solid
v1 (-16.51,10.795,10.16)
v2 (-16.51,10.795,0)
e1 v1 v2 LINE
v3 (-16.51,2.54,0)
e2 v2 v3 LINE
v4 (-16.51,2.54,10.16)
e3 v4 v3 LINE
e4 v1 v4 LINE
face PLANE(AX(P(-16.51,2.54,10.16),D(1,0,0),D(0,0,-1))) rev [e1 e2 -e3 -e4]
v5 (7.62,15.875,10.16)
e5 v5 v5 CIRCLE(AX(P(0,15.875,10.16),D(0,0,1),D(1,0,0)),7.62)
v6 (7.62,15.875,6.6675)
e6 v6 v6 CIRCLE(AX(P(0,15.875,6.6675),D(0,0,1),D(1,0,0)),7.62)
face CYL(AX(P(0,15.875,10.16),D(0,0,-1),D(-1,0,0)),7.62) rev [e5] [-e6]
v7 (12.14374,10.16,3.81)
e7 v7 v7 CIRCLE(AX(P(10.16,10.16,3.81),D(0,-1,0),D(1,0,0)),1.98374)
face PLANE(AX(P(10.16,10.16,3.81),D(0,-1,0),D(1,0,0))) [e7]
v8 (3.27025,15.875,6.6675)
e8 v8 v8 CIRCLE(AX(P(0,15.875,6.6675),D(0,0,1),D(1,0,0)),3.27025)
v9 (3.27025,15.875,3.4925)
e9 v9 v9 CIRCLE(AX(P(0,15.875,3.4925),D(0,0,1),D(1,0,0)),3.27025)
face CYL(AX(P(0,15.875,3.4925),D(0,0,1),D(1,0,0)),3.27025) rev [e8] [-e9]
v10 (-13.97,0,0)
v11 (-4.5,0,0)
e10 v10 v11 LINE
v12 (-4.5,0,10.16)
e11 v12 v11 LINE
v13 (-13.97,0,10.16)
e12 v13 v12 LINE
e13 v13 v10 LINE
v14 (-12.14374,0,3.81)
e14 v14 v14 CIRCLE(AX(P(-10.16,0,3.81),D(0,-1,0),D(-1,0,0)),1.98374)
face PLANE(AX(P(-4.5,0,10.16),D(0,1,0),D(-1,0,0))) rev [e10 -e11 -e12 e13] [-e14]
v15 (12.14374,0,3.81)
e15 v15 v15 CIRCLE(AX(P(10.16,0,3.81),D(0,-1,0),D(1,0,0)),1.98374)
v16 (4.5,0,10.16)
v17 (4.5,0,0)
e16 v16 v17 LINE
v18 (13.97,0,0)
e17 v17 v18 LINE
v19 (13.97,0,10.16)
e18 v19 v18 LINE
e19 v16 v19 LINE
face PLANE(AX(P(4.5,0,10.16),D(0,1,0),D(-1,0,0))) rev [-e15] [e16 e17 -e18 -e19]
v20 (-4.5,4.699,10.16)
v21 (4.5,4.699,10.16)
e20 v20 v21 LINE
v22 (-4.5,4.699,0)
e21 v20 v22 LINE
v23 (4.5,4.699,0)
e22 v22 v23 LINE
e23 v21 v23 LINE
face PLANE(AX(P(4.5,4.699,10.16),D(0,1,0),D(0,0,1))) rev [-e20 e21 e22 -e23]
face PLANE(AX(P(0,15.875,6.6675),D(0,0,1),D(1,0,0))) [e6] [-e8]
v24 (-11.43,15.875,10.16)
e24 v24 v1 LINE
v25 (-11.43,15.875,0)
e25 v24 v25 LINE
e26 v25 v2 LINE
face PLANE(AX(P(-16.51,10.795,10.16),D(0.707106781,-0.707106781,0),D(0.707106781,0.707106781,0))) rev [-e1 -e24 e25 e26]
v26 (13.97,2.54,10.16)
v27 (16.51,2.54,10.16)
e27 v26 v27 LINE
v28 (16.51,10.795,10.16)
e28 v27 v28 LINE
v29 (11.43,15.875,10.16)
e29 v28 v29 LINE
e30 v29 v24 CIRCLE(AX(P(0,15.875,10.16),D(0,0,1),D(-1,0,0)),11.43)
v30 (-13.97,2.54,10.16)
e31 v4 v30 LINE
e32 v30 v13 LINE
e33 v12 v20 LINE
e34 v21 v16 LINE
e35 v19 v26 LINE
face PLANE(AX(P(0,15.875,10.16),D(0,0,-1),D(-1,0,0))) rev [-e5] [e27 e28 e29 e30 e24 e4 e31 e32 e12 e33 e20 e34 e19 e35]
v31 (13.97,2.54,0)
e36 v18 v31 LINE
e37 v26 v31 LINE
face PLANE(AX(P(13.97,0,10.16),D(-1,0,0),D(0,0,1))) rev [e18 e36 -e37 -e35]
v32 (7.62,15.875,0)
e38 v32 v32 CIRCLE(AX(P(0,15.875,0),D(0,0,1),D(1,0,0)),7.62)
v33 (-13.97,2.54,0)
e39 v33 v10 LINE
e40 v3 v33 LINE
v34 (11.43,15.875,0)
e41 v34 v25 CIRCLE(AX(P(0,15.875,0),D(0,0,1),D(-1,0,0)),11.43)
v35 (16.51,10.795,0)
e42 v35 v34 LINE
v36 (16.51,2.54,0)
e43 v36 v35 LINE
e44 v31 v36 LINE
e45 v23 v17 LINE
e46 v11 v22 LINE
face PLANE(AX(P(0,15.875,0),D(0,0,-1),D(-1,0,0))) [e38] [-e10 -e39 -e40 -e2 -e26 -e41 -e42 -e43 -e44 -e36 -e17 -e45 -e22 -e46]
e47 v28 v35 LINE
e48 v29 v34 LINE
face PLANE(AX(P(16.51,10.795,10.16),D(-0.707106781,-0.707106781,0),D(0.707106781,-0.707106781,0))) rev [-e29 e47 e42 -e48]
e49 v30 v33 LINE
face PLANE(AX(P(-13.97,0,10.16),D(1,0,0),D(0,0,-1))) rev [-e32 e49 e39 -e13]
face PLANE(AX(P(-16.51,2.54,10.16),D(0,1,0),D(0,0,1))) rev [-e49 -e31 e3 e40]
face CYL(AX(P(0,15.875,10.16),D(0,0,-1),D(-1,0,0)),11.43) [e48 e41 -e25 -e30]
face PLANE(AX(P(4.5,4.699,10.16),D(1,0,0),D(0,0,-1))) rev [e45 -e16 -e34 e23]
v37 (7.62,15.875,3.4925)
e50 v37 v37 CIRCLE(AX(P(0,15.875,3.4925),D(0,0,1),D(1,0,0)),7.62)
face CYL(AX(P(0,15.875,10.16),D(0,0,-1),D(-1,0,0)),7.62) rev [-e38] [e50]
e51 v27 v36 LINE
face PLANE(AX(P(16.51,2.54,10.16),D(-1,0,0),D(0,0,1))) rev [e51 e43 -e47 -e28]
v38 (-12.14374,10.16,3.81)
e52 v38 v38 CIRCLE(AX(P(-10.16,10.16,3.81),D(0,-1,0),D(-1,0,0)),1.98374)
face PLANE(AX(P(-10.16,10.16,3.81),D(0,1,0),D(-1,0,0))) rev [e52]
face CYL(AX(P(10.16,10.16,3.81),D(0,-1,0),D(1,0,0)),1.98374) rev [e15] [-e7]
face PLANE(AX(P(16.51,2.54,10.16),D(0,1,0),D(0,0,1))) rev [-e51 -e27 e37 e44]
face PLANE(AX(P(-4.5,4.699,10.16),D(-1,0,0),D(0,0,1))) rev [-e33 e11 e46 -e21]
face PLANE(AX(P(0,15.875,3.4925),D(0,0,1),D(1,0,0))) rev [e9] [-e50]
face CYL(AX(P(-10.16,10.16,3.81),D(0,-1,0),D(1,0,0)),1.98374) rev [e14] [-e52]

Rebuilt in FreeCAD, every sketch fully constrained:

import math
import FreeCAD as App
import Part
import Sketcher

V = App.Vector
Q = App.Units.Quantity

doc = App.newDocument("Part")
body = doc.addObject("PartDesign::Body", "Body")

sketch1 = body.newObject("Sketcher::SketchObject", "Sketch")
sketch1.AttachmentSupport = (doc.getObject("XY_Plane"), [""])
sketch1.MapMode = "FlatFace"
sketch1.addGeometry(Part.LineSegment(V(-4.5, 4.7, 0), V(4.5, 4.7, 0)), False)
sketch1.addGeometry(Part.LineSegment(V(4.5, 4.7, 0), V(4.5, 0, 0)), False)
sketch1.addGeometry(Part.LineSegment(V(4.5, 0, 0), V(14, 0, 0)), False)
sketch1.addGeometry(Part.LineSegment(V(14, 0, 0), V(14, 2.5, 0)), False)
sketch1.addGeometry(Part.LineSegment(V(14, 2.5, 0), V(16.5, 2.5, 0)), False)
sketch1.addGeometry(Part.LineSegment(V(16.5, 2.5, 0), V(16.5, 10.8, 0)), False)
sketch1.addGeometry(Part.LineSegment(V(16.5, 10.8, 0), V(11.4, 15.9, 0)), False)
sketch1.addGeometry(Part.ArcOfCircle(Part.Circle(V(0, 15.9, 0), V(0, 0, 1), 11.4), math.radians(0), math.radians(180)), False)
sketch1.addGeometry(Part.LineSegment(V(-11.4, 15.9, 0), V(-16.5, 10.8, 0)), False)
sketch1.addGeometry(Part.LineSegment(V(-16.5, 10.8, 0), V(-16.5, 2.5, 0)), False)
sketch1.addGeometry(Part.LineSegment(V(-16.5, 2.5, 0), V(-14, 2.5, 0)), False)
sketch1.addGeometry(Part.LineSegment(V(-14, 2.5, 0), V(-14, 0, 0)), False)
sketch1.addGeometry(Part.LineSegment(V(-14, 0, 0), V(-4.5, 0, 0)), False)
sketch1.addGeometry(Part.LineSegment(V(-4.5, 0, 0), V(-4.5, 4.7, 0)), False)
sketch1.addGeometry(Part.Circle(V(0, 15.9, 0), V(0, 0, 1), 7.6), False)
sketch1.addConstraint(Sketcher.Constraint("Coincident", 0, 2, 1, 1))
sketch1.addConstraint(Sketcher.Constraint("Coincident", 1, 2, 2, 1))
sketch1.addConstraint(Sketcher.Constraint("Coincident", 2, 2, 3, 1))
sketch1.addConstraint(Sketcher.Constraint("Coincident", 3, 2, 4, 1))
sketch1.addConstraint(Sketcher.Constraint("Coincident", 4, 2, 5, 1))
sketch1.addConstraint(Sketcher.Constraint("Coincident", 5, 2, 6, 1))
sketch1.addConstraint(Sketcher.Constraint("Coincident", 6, 2, 7, 1))
sketch1.addConstraint(Sketcher.Constraint("Coincident", 7, 2, 8, 1))
sketch1.addConstraint(Sketcher.Constraint("Coincident", 8, 2, 9, 1))
sketch1.addConstraint(Sketcher.Constraint("Coincident", 9, 2, 10, 1))
sketch1.addConstraint(Sketcher.Constraint("Coincident", 10, 2, 11, 1))
sketch1.addConstraint(Sketcher.Constraint("Coincident", 11, 2, 12, 1))
sketch1.addConstraint(Sketcher.Constraint("Coincident", 12, 2, 13, 1))
sketch1.addConstraint(Sketcher.Constraint("Coincident", 13, 2, 0, 1))
sketch1.addConstraint(Sketcher.Constraint("Horizontal", 0))
sketch1.addConstraint(Sketcher.Constraint("Vertical", 1))
sketch1.addConstraint(Sketcher.Constraint("Horizontal", 2))
sketch1.addConstraint(Sketcher.Constraint("Vertical", 3))
sketch1.addConstraint(Sketcher.Constraint("Horizontal", 4))
sketch1.addConstraint(Sketcher.Constraint("Vertical", 5))
sketch1.addConstraint(Sketcher.Constraint("Vertical", 9))
sketch1.addConstraint(Sketcher.Constraint("Horizontal", 10))
sketch1.addConstraint(Sketcher.Constraint("Vertical", 11))
sketch1.addConstraint(Sketcher.Constraint("Horizontal", 12))
sketch1.addConstraint(Sketcher.Constraint("Vertical", 13))
sketch1.addConstraint(Sketcher.Constraint("Coincident", 14, 3, 7, 3))
sketch1.addConstraint(Sketcher.Constraint("Symmetric", 2, 2, 11, 2, -1, 1))
sketch1.addConstraint(Sketcher.Constraint("Symmetric", 6, 2, 7, 2, -2))
sketch1.addConstraint(Sketcher.Constraint("Symmetric", 5, 2, 8, 2, -2))
sketch1.addConstraint(Sketcher.Constraint("Symmetric", 1, 2, 12, 2, -2))
sketch1.addConstraint(Sketcher.Constraint("Perpendicular", 6, 8))
sketch1.addConstraint(Sketcher.Constraint("Horizontal", 14, 3, 6, 2))
sketch1.addConstraint(Sketcher.Constraint("Horizontal", 4, 2, 9, 2))
sketch1.addConstraint(Sketcher.Constraint("Equal", 10, 3))
sketch1.addConstraint(Sketcher.Constraint("Diameter", 14, Q("0.6 in")))
sketch1.addConstraint(Sketcher.Constraint("Radius", 7, Q("0.45 in")))
sketch1.addConstraint(Sketcher.Constraint("DistanceX", 4, 1, 4, 2, Q("0.1 in")))
sketch1.addConstraint(Sketcher.Constraint("DistanceX", 6, 2, 5, 2, Q("0.2 in")))
sketch1.addConstraint(Sketcher.Constraint("DistanceY", 1, 2, 1, 1, Q("0.185 in")))
sketch1.addConstraint(Sketcher.Constraint("DistanceY", 5, 1, 5, 2, Q("0.325 in")))
sketch1.addConstraint(Sketcher.Constraint("DistanceX", 0, 1, 0, 2, 9.0))
pad1 = body.newObject("PartDesign::Pad", "Pad")
pad1.Profile = sketch1
pad1.Length = Q("0.4 in")

sketch2 = body.newObject("Sketcher::SketchObject", "Sketch001")
sketch2.AttachmentSupport = (doc.getObject("XY_Plane"), [""])
sketch2.MapMode = "FlatFace"
sketch2.AttachmentOffset = App.Placement(V(0, 0, 0.2 * 25.4), App.Rotation())
sketch2.addGeometry(Part.Circle(V(0, 15.9, 0), V(0, 0, 1), 8.7), False)
sketch2.addGeometry(Part.Circle(V(0, 15.9, 0), V(0, 0, 1), 3.3), False)
sketch2.addConstraint(Sketcher.Constraint("Coincident", 1, 3, 0, 3))
sketch2.addConstraint(Sketcher.Constraint("PointOnObject", 0, 3, -2))
sketch2.addConstraint(Sketcher.Constraint("Diameter", 0, Q("0.688 in")))
sketch2.addConstraint(Sketcher.Constraint("Diameter", 1, Q("0.2575 in")))
sketch2.addConstraint(Sketcher.Constraint("DistanceY", -1, 1, 0, 3, Q("0.625 in")))
pad2 = body.newObject("PartDesign::Pad", "Pad001")
pad2.Profile = sketch2
pad2.Type = "TwoLengths"
pad2.Length = Q("0.0625 in")
pad2.Length2 = Q("0.0625 in")

sketch3 = body.newObject("Sketcher::SketchObject", "Sketch002")
sketch3.AttachmentSupport = (doc.getObject("XZ_Plane"), [""])
sketch3.MapMode = "FlatFace"
sketch3.addGeometry(Part.Circle(V(10.2, 3.8, 0), V(0, 0, 1), 2), False)
sketch3.addGeometry(Part.Circle(V(-10.2, 3.8, 0), V(0, 0, 1), 2), False)
sketch3.addConstraint(Sketcher.Constraint("Equal", 0, 1))
sketch3.addConstraint(Sketcher.Constraint("Symmetric", 0, 3, 1, 3, -2))
sketch3.addConstraint(Sketcher.Constraint("Diameter", 0, Q("0.1562 in")))
sketch3.addConstraint(Sketcher.Constraint("DistanceX", -1, 1, 0, 3, Q("0.4 in")))
sketch3.addConstraint(Sketcher.Constraint("DistanceY", -1, 1, 0, 3, Q("0.15 in")))
pocket1 = body.newObject("PartDesign::Pocket", "Pocket")
pocket1.Profile = sketch3
pocket1.Length = Q("0.4 in")

doc.recompute()
